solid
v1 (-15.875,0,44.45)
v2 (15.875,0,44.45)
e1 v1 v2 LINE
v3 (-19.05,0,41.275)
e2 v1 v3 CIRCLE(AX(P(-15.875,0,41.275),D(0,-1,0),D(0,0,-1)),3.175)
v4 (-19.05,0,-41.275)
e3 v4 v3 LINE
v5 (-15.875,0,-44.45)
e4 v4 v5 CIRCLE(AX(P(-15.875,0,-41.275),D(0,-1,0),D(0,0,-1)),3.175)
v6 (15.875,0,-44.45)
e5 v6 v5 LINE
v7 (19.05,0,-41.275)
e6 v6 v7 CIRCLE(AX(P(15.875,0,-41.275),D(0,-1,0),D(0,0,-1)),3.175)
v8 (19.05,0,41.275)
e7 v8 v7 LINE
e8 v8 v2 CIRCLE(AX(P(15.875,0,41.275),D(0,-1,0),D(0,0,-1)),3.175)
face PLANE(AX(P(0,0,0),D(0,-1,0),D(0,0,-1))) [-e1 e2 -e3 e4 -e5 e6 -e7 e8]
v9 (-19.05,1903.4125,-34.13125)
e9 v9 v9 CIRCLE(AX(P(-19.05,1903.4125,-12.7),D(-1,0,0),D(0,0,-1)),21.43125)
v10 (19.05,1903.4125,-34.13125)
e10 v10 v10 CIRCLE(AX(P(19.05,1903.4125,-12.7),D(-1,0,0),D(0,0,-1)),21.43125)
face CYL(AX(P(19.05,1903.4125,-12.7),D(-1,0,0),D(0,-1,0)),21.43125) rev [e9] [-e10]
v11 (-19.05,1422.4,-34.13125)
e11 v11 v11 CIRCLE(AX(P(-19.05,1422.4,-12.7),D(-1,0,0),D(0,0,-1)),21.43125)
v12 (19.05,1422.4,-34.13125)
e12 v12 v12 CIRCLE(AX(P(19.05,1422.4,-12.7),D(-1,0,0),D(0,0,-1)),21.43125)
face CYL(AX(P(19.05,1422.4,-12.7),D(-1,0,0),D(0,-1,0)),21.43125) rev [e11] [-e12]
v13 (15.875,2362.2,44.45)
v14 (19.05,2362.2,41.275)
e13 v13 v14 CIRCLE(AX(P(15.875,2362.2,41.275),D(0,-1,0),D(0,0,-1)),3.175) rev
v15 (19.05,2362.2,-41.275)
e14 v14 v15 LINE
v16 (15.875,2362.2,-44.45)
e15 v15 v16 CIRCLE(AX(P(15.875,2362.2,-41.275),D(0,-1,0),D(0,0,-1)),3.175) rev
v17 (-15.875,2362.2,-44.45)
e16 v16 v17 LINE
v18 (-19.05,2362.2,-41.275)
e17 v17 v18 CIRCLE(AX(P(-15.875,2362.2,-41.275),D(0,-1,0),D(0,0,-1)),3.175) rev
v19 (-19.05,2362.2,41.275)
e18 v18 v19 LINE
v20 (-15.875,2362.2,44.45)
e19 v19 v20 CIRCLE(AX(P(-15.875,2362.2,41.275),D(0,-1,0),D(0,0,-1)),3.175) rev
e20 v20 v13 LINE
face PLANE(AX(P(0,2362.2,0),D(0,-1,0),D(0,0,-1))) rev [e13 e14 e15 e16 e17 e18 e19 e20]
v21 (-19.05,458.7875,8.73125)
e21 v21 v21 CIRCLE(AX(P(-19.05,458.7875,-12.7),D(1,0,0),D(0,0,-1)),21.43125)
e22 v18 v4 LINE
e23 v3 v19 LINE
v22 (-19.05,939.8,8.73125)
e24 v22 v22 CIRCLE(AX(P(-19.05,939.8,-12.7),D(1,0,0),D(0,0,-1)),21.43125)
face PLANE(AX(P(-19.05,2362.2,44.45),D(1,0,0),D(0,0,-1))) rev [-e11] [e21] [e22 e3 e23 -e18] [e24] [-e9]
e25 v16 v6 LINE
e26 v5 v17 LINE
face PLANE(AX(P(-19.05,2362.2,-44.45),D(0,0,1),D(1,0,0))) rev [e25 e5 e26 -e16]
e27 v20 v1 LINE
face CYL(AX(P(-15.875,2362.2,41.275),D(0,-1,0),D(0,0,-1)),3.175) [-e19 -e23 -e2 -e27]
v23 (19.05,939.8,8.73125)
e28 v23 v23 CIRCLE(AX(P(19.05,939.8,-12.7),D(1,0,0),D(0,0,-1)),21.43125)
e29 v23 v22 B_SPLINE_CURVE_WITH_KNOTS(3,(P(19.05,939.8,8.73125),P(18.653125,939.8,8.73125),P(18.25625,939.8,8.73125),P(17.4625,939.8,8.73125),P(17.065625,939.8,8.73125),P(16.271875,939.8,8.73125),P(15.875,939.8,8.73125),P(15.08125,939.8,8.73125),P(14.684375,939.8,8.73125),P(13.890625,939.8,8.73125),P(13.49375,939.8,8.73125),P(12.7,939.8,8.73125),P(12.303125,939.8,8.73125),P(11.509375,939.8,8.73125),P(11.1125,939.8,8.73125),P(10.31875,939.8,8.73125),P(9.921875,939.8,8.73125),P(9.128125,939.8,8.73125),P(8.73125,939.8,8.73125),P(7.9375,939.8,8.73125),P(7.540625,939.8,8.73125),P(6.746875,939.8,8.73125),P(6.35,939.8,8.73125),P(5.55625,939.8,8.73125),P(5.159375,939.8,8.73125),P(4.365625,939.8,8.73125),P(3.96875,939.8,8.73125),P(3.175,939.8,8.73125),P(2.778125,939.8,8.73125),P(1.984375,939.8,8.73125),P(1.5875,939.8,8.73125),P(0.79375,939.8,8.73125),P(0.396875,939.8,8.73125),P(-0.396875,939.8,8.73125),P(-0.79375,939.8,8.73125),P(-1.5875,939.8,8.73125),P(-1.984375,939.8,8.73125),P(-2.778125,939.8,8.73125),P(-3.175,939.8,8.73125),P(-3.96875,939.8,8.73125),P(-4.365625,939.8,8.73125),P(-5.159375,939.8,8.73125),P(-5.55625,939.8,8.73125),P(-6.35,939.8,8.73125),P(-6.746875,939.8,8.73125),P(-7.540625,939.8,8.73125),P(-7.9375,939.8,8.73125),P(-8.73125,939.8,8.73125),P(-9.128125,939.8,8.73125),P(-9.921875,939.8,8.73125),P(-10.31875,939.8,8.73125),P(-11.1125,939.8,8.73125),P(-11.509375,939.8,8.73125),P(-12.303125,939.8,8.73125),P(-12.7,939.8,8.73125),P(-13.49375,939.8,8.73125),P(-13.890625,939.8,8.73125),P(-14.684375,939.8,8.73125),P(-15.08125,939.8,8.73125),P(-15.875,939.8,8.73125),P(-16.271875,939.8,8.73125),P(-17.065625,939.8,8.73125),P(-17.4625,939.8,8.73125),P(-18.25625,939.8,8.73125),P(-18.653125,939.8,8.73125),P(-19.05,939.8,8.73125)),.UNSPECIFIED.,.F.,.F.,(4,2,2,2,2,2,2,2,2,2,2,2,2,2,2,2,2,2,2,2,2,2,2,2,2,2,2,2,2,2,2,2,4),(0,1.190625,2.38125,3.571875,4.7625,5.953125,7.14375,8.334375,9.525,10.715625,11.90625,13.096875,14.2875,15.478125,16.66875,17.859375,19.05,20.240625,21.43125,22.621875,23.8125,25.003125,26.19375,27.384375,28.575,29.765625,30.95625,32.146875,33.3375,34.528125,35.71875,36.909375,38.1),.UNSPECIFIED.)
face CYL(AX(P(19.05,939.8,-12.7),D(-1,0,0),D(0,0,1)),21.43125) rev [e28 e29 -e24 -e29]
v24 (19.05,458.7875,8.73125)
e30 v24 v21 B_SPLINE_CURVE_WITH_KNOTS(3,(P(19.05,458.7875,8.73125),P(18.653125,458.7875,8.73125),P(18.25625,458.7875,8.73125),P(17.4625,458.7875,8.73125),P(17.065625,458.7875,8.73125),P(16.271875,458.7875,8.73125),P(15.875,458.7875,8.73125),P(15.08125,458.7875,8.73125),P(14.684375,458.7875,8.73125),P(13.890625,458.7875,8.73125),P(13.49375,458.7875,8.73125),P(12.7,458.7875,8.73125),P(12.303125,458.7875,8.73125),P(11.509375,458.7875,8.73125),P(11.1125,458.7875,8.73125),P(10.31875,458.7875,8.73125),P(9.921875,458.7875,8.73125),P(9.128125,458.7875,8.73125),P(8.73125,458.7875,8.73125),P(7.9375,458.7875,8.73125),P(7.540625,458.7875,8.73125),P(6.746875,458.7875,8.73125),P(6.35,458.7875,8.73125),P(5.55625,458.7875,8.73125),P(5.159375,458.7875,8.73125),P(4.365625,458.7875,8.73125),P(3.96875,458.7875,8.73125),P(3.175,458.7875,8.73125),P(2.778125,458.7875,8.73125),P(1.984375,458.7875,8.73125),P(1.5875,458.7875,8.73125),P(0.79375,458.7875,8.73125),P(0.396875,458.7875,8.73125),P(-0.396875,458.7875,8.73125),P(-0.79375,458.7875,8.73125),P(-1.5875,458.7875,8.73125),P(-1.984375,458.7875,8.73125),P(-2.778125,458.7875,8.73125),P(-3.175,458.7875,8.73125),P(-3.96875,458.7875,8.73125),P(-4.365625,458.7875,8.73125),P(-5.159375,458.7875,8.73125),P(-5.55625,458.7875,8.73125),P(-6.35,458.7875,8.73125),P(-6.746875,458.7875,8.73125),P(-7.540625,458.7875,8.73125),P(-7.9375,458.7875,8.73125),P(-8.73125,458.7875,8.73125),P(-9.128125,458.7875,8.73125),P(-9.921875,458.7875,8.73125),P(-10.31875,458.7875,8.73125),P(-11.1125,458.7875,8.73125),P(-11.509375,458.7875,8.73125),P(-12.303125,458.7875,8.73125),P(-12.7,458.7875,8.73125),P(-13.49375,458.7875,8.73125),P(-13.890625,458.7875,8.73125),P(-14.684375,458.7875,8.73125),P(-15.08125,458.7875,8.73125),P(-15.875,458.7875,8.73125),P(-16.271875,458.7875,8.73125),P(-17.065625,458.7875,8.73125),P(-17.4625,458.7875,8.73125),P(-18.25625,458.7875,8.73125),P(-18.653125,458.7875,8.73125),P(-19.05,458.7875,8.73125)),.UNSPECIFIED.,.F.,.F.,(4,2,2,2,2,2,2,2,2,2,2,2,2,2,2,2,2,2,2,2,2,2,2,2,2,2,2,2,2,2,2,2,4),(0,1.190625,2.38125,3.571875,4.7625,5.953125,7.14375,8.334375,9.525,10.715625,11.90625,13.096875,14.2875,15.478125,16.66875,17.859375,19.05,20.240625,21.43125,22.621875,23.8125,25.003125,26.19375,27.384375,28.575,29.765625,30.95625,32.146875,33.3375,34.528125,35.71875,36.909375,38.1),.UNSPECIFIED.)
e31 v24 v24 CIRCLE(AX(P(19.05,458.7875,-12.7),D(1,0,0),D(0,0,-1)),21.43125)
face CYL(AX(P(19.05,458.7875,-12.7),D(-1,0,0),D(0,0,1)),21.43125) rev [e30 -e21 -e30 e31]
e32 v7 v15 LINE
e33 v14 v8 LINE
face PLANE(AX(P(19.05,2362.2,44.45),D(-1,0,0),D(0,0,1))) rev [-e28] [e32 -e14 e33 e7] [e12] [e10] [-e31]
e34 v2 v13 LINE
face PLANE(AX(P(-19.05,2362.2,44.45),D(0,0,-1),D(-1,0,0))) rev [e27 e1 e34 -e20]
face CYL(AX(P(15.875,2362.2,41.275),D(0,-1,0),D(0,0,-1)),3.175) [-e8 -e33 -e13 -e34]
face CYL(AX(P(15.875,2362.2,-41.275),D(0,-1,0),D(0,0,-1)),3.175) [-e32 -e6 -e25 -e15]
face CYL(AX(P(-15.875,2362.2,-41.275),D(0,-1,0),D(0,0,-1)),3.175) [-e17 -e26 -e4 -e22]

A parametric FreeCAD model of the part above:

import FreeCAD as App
import Part
import Sketcher
from FreeCAD import Vector
Q = App.Units.Quantity


def edges_at(feature, points):
    """Names of the edges that pass closest to the given points."""
    edges = feature.Shape.Edges
    near = lambda p: min(range(len(edges)), key=lambda i: edges[i].distToShape(Part.Vertex(*p))[0])
    return sorted({f"Edge{near(p) + 1}" for p in points})


def add_polygon(sketch, points):
    """Adds a closed chain of lines whose ends are joined by coincident constraints."""
    first, n = sketch.GeometryCount, len(points)
    for a, b in zip(points, points[1:] + points[:1]):
        sketch.addGeometry(Part.LineSegment(App.Vector(*a, 0), App.Vector(*b, 0)), False)
    for i in range(n):
        sketch.addConstraint(Sketcher.Constraint("Coincident", first + i, 2, first + (i + 1) % n, 1))

doc = App.newDocument("Part")
params = doc.addObject("Spreadsheet::Sheet", "Params")
for row, (alias, value) in enumerate([
    ("sketch1_width", "1.5 in"),
    ("sketch1_height", "3.5 in"),
    ("pad1_length", "93 in"),
    ("sketch2_diameter", "1.6875 in"),
    ("fillet_radius", "0.125 in"),
], start=1):
    params.set(f"A{row}", alias)
    params.set(f"B{row}", "=" + value)
    params.setAlias(f"B{row}", alias)

body = doc.addObject("PartDesign::Body", "Body")

# Sketch on XZ plane
sketch1 = body.newObject("Sketcher::SketchObject", "Sketch")
sketch1.AttachmentSupport = (doc.getObject("XZ_Plane"), [""])
sketch1.MapMode = "FlatFace"
add_polygon(sketch1, [(-19.05, -44.45), (-19.05, 44.45), (19.05, 44.45), (19.05, -44.45)])  # lines 0-3
sketch1.addConstraint([
    Sketcher.Constraint("Vertical", 0),
    Sketcher.Constraint("Horizontal", 1),
    Sketcher.Constraint("Vertical", 2),
    Sketcher.Constraint("Horizontal", 3),
    Sketcher.Constraint("Symmetric", 0, 2, 2, 2, -1, 1),
    Sketcher.Constraint("DistanceX", 1, 1, 1, 2, Q("1.5 in")),
    Sketcher.Constraint("DistanceY", 0, 1, 0, 2, Q("3.5 in")),
])
sketch1.setExpression("Constraints[9]", "Params.sketch1_width")
sketch1.setExpression("Constraints[10]", "Params.sketch1_height")
pad1 = body.newObject("PartDesign::Pad", "Pad")
pad1.Profile = sketch1
pad1.setExpression("Length", "Params.pad1_length")
pad1.Reversed = True

# Sketch on YZ plane
sketch2 = body.newObject("Sketcher::SketchObject", "Sketch001")
sketch2.AttachmentSupport = (doc.getObject("YZ_Plane"), [""])
sketch2.MapMode = "FlatFace"
sketch2.AttachmentOffset = App.Placement(Vector(0, 0, -0.75 * 25.4), App.Rotation())
sketch2.addGeometry([
    Part.Circle(Vector(458.7875, -12.7, 0), Vector(0, 0, 1), 21.43125),
    Part.Circle(Vector(939.8, -12.7, 0), Vector(0, 0, 1), 21.43125),
], False)
sketch2.addConstraint([
    Sketcher.Constraint("Equal", 0, 1),
    Sketcher.Constraint("Horizontal", 0, 3, 1, 3),
    Sketcher.Constraint("Diameter", 0, Q("1.6875 in")),
    Sketcher.Constraint("DistanceX", -1, 1, 1, 3, Q("37 in")),
    Sketcher.Constraint("DistanceY", 0, 3, -1, 1, Q("0.5 in")),
    Sketcher.Constraint("DistanceX", -1, 1, 0, 3, Q("18.0625 in")),
])
sketch2.setExpression("Constraints[2]", "Params.sketch2_diameter")
pocket1 = body.newObject("PartDesign::Pocket", "Pocket")
pocket1.Profile = sketch2
pocket1.Type = "ThroughAll"
pocket1.Reversed = True
doc.recompute()

fillet = body.newObject("PartDesign::Fillet", "Fillet")
fillet.Base = (pocket1, edges_at(pocket1, [
    (19.05, 1181.1, 44.45),
    (-19.05, 1181.1, 44.45),
    (-19.05, 1181.1, -44.45),
    (19.05, 1181.1, -44.45),
]))
fillet.setExpression("Radius", "Params.fillet_radius")
doc.recompute()

datumplane = body.newObject("PartDesign::Plane", "DatumPlane")
datumplane.AttachmentSupport = (doc.getObject("XZ_Plane"), [""])
datumplane.MapMode = "FlatFace"
datumplane.AttachmentOffset = App.Placement(Vector(0, 0, -46.5 * 25.4), App.Rotation())
mirrored = body.newObject("PartDesign::Mirrored", "Mirrored")
mirrored.Originals = [pocket1]
mirrored.MirrorPlane = (datumplane, [""])
body.Tip = mirrored

doc.recompute()
